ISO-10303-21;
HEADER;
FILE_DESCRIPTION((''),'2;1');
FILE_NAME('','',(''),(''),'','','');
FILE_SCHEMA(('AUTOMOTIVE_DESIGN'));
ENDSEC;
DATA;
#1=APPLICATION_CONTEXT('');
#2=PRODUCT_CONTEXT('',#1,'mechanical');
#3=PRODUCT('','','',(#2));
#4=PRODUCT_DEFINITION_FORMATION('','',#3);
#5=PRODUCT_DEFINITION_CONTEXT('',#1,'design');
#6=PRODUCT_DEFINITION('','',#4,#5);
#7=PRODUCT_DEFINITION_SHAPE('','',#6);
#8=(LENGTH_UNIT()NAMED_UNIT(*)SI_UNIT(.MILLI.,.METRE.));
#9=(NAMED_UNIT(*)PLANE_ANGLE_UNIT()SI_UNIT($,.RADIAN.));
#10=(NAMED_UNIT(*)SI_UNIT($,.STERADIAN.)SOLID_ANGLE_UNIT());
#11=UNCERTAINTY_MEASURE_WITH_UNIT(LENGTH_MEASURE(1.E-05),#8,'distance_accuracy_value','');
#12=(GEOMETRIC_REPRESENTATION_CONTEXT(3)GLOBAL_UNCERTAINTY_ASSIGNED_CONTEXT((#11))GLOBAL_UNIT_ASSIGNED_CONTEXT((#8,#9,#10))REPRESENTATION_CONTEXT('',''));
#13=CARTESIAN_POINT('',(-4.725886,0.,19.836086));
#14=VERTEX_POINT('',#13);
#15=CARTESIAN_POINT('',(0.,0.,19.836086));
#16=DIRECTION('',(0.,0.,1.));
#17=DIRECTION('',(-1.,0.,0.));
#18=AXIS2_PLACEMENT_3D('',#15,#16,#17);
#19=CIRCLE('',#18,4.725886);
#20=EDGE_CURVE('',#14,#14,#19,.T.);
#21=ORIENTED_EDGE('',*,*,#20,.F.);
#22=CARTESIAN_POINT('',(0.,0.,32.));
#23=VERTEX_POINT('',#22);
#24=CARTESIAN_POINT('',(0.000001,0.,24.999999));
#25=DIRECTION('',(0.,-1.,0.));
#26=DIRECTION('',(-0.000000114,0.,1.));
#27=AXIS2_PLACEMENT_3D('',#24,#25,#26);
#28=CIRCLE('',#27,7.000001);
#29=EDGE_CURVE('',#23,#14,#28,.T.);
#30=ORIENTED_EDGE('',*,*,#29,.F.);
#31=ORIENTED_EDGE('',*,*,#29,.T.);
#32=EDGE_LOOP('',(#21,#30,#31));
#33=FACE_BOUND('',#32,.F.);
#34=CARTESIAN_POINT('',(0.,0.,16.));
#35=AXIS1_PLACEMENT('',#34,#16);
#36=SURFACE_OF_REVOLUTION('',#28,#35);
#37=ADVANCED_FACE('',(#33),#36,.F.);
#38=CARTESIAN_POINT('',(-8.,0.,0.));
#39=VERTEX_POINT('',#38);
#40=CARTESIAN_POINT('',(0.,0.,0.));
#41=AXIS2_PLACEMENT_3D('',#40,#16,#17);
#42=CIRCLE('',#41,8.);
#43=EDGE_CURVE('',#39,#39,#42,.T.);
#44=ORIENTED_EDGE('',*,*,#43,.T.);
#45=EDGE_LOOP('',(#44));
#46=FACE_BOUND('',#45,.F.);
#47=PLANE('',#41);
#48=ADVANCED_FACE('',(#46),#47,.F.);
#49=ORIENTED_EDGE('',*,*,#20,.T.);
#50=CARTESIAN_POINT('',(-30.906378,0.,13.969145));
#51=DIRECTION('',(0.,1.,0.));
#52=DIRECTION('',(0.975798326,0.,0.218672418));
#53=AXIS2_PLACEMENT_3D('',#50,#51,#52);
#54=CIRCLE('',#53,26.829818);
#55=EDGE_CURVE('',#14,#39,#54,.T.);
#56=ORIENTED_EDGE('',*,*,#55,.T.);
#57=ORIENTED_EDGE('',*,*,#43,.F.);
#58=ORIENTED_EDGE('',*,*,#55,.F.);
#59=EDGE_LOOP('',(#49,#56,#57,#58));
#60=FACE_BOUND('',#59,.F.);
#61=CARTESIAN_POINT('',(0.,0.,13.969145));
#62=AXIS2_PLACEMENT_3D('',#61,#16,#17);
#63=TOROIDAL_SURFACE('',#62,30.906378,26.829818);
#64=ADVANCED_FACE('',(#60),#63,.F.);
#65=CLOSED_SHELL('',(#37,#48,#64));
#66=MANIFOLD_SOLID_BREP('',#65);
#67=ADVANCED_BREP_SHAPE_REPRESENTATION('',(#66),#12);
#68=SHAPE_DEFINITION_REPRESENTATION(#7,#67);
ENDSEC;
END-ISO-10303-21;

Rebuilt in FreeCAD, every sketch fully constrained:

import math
import FreeCAD as App
import Part
import Sketcher

doc = App.newDocument("Part")
params = doc.addObject("Spreadsheet::Sheet", "Params")
for row, (alias, value) in enumerate([
    ("sketch1_radius", "7.000001 mm"),
    ("sketch1_width", "8 mm"),
    ("sketch1_height", "32 mm"),
    ("revolution_angle", "360 deg"),
], start=1):
    params.set(f"A{row}", alias)
    params.set(f"B{row}", "=" + value)
    params.setAlias(f"B{row}", alias)

body = doc.addObject("PartDesign::Body", "Body")

# Sketch on XZ plane
sketch1 = doc.addObject("Sketcher::SketchObject", "Sketch")
body.addObject(sketch1)
sketch1.AttachmentSupport = (doc.XZ_Plane, [""])
sketch1.MapMode = "FlatFace"
sketch1.addGeometry(Part.LineSegment(App.Vector(0, 0, 0), App.Vector(0, 32, 0)), False)
sketch1.addGeometry(Part.ArcOfCircle(Part.Circle(App.Vector(0, 25, 0), App.Vector(0, 0, 1), 7), math.radians(90), math.radians(228)), False)
sketch1.addGeometry(Part.ArcOfCircle(Part.Circle(App.Vector(-31, 14, 0), App.Vector(0, 0, 1), 27), math.radians(-31), math.radians(13)), False)
sketch1.addGeometry(Part.LineSegment(App.Vector(-8, 0, 0), App.Vector(0, 0, 0)), False)
sketch1.addConstraint(Sketcher.Constraint("Coincident", 0, 2, 1, 1))
sketch1.addConstraint(Sketcher.Constraint("Coincident", 1, 2, 2, 2))
sketch1.addConstraint(Sketcher.Constraint("Coincident", 2, 1, 3, 1))
sketch1.addConstraint(Sketcher.Constraint("Coincident", 3, 2, 0, 1))
sketch1.addConstraint(Sketcher.Constraint("Vertical", 0))
sketch1.addConstraint(Sketcher.Constraint("Horizontal", 3))
sketch1.addConstraint(Sketcher.Constraint("Coincident", 3, 2, -1, 1))
sketch1.addConstraint(Sketcher.Constraint("PointOnObject", 1, 3, -2))
sketch1.addConstraint(Sketcher.Constraint("Radius", 1, 7.000001))
sketch1.addConstraint(Sketcher.Constraint("DistanceX", 3, 1, 3, 2, 8.0))
sketch1.addConstraint(Sketcher.Constraint("DistanceY", 0, 1, 0, 2, 32.0))
sketch1.addConstraint(Sketcher.Constraint("Radius", 2, 26.829818))
sketch1.addConstraint(Sketcher.Constraint("DistanceX", 2, 3, 1, 3, 30.906379))
sketch1.setExpression("Constraints[8]", "Params.sketch1_radius")
sketch1.setExpression("Constraints[9]", "Params.sketch1_width")
sketch1.setExpression("Constraints[10]", "Params.sketch1_height")
revolution = doc.addObject("PartDesign::Revolution", "Revolution")
body.addObject(revolution)
revolution.Profile = sketch1
revolution.ReferenceAxis = (sketch1, ["V_Axis"])
revolution.setExpression("Angle", "Params.revolution_angle")

doc.recompute()
